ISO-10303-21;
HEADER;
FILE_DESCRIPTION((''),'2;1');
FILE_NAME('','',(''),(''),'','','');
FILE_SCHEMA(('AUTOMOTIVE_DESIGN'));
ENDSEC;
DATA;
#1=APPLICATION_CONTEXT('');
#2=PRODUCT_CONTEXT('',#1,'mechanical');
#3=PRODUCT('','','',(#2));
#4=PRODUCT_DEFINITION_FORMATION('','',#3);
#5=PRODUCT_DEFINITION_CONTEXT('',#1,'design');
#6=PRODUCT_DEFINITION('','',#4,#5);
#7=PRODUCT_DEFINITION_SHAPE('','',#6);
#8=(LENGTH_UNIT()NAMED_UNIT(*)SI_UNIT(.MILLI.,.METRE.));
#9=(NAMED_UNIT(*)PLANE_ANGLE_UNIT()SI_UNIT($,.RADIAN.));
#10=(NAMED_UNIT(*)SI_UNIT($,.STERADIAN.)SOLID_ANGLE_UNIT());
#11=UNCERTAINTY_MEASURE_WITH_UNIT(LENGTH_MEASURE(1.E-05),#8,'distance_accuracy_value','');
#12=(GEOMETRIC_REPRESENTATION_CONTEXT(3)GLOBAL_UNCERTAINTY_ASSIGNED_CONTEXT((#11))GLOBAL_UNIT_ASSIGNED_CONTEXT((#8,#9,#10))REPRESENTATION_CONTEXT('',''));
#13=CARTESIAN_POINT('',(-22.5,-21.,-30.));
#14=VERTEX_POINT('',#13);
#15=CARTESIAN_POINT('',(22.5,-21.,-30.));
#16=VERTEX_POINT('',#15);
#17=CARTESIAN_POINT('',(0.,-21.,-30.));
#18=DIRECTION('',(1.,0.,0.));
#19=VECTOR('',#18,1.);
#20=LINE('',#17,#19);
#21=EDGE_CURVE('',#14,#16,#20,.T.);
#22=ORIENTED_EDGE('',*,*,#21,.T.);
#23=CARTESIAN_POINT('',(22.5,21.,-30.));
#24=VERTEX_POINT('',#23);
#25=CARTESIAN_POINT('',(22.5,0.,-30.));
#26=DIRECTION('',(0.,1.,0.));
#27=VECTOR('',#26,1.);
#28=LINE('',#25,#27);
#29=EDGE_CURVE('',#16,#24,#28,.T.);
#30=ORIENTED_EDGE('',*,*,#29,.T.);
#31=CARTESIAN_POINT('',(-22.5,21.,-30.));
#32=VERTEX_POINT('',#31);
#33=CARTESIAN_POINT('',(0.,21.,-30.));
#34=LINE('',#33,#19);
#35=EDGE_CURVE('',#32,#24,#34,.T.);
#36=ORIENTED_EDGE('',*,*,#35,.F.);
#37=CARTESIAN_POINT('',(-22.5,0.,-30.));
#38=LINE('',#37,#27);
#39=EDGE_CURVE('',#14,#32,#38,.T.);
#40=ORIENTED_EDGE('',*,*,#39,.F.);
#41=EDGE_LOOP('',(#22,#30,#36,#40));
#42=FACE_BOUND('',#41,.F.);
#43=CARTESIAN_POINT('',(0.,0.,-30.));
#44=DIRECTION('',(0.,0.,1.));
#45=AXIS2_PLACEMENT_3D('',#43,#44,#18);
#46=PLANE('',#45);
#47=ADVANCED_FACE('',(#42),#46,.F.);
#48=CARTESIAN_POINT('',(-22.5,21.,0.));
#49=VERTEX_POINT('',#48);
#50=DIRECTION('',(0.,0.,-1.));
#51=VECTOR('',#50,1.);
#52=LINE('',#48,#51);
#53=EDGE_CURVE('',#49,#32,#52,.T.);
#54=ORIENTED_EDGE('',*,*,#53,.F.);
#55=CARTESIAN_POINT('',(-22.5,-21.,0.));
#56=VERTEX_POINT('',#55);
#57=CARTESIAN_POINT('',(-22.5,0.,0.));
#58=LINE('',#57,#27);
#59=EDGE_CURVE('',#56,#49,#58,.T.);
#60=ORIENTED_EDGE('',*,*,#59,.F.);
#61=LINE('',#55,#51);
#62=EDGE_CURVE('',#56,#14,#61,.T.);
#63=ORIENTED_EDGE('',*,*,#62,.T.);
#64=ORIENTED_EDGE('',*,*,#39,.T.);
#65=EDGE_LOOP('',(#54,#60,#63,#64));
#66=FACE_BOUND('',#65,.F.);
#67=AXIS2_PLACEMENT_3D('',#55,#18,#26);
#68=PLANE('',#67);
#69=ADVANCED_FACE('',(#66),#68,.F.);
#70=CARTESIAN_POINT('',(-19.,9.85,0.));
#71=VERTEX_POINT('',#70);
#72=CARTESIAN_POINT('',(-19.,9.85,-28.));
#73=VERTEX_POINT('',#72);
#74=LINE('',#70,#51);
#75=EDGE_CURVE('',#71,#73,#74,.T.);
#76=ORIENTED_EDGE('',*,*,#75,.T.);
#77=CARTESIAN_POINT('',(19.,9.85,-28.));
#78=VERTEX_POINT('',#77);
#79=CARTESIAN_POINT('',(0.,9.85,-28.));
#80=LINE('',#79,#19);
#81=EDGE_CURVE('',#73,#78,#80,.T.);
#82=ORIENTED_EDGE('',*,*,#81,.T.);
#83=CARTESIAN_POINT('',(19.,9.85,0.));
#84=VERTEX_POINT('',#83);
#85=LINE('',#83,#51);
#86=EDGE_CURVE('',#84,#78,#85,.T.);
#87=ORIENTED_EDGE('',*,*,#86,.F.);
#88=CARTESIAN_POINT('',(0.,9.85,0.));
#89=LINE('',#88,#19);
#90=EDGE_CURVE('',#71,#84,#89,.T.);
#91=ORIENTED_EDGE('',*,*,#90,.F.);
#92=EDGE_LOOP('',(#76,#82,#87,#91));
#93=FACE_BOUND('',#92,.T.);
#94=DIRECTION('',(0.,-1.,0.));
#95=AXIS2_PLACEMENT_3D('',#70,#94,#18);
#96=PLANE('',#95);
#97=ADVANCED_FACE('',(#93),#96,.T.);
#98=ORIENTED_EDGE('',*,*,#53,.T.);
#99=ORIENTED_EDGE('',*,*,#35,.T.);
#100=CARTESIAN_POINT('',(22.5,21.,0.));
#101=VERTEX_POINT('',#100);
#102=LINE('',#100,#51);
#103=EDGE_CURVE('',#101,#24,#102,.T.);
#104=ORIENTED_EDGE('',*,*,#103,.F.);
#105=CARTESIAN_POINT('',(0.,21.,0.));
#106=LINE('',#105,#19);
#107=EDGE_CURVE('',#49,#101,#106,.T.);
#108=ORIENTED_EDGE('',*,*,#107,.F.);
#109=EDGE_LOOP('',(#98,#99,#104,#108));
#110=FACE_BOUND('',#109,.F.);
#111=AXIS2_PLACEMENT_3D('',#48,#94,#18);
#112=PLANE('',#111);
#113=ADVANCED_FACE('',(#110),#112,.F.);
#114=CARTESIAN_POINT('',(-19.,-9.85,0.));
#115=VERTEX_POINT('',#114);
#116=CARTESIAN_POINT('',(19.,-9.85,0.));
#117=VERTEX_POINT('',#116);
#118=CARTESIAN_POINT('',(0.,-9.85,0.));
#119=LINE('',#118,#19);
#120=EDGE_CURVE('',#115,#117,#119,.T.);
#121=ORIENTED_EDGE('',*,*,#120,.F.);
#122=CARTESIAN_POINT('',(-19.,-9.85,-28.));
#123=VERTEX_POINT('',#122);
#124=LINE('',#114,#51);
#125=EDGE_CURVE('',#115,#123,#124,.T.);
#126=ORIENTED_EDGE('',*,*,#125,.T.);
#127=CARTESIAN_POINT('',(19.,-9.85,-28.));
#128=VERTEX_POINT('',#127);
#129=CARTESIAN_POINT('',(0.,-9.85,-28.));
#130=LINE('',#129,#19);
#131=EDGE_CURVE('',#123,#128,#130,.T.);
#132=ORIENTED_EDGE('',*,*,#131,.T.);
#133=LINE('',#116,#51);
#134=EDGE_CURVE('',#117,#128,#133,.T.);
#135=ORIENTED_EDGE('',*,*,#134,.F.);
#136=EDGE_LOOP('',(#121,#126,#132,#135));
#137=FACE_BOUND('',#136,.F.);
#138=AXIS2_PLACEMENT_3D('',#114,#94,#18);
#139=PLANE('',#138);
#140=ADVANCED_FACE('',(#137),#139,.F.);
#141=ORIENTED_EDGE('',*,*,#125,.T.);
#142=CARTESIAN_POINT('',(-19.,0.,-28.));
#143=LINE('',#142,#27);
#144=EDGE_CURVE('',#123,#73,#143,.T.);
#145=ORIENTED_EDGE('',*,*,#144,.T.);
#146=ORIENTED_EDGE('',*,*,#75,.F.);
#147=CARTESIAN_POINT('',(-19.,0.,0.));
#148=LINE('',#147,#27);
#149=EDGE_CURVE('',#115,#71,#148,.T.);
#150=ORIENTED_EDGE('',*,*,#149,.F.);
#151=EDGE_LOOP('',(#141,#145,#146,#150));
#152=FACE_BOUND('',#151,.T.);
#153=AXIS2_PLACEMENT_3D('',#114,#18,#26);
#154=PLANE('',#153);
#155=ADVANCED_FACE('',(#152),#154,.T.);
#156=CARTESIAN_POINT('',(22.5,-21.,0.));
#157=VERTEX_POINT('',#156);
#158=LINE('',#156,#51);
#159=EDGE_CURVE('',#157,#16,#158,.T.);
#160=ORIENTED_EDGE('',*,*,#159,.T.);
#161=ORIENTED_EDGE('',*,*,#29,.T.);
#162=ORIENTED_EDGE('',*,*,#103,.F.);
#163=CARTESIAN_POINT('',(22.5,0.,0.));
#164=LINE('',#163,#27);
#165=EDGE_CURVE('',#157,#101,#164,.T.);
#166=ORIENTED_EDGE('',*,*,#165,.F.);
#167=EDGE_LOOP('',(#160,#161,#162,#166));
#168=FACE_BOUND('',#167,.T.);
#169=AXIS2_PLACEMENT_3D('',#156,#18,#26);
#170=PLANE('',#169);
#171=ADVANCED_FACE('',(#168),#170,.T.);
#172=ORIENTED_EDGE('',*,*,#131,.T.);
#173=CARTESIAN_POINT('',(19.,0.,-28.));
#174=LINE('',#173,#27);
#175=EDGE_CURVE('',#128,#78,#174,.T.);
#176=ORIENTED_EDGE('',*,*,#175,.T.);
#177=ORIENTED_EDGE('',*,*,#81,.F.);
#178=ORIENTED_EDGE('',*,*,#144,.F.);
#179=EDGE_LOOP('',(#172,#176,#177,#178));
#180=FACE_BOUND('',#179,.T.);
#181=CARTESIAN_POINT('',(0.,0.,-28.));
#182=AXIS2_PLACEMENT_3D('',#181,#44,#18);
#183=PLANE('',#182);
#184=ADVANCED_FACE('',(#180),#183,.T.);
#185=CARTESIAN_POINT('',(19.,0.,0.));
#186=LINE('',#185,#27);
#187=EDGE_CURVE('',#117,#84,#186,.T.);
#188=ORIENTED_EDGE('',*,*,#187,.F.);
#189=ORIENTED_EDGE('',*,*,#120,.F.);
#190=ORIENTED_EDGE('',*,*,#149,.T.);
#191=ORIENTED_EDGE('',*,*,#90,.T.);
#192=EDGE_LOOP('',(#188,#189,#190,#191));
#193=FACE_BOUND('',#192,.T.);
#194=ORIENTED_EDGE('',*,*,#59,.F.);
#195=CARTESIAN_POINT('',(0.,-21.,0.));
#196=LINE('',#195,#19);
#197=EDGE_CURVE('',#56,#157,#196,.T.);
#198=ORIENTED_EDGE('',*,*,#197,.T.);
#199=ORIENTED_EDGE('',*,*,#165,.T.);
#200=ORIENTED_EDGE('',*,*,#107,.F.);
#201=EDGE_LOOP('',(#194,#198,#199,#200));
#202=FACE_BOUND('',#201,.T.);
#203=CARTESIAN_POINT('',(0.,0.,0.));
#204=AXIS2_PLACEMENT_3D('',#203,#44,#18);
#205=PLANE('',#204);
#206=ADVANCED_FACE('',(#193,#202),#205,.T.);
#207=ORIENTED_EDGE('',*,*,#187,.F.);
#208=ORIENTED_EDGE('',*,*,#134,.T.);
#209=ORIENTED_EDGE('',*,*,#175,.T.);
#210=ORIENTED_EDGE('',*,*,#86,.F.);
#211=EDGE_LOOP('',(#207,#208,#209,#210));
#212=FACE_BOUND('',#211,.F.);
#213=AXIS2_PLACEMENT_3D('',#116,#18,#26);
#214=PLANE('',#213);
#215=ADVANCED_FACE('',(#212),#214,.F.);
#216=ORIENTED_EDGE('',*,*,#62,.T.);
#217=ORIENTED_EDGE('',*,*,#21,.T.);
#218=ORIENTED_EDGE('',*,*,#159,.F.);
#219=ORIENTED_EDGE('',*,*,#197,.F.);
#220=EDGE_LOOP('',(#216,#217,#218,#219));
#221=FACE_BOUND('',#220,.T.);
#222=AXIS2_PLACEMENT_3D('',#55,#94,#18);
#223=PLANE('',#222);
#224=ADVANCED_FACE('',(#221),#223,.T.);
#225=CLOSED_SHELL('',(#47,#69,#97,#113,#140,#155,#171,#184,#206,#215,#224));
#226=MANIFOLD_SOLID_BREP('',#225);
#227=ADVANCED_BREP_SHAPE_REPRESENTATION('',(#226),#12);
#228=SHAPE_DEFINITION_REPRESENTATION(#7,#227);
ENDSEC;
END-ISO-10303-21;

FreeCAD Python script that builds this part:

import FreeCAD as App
import Part
import Sketcher

V = App.Vector


def add_polygon(sketch, points):
    """Adds a closed chain of lines whose ends are joined by coincident constraints."""
    first, n = sketch.GeometryCount, len(points)
    for a, b in zip(points, points[1:] + points[:1]):
        sketch.addGeometry(Part.LineSegment(App.Vector(*a, 0), App.Vector(*b, 0)), False)
    for i in range(n):
        sketch.addConstraint(Sketcher.Constraint("Coincident", first + i, 2, first + (i + 1) % n, 1))

doc = App.newDocument("Part")
body = doc.addObject("PartDesign::Body", "Body")

# Sketch on XY plane
sketch1 = body.newObject("Sketcher::SketchObject", "Sketch")
sketch1.AttachmentSupport = (doc.getObject("XY_Plane"), [""])
sketch1.MapMode = "FlatFace"
add_polygon(sketch1, [(-22, 21), (-22, -21), (22, -21), (22, 21)])  # lines 0-3
sketch1.addConstraint([
    Sketcher.Constraint("Vertical", 0),
    Sketcher.Constraint("Horizontal", 1),
    Sketcher.Constraint("Vertical", 2),
    Sketcher.Constraint("Horizontal", 3),
    Sketcher.Constraint("Symmetric", 0, 2, 2, 2, -1, 1),
    Sketcher.Constraint("DistanceX", 1, 1, 1, 2, 45.0),
    Sketcher.Constraint("DistanceY", 0, 2, 0, 1, 42.0),
])
pad1 = body.newObject("PartDesign::Pad", "Pad")
pad1.Profile = sketch1
pad1.Length = 30
pad1.Reversed = True

# Sketch on XY plane
sketch2 = body.newObject("Sketcher::SketchObject", "Sketch001")
sketch2.AttachmentSupport = (doc.getObject("XY_Plane"), [""])
sketch2.MapMode = "FlatFace"
add_polygon(sketch2, [(-19, 10), (-19, -10), (19, -10), (19, 10)])  # lines 0-3
sketch2.addConstraint([
    Sketcher.Constraint("Vertical", 0),
    Sketcher.Constraint("Horizontal", 1),
    Sketcher.Constraint("Vertical", 2),
    Sketcher.Constraint("Horizontal", 3),
    Sketcher.Constraint("Symmetric", 0, 2, 2, 2, -1, 1),
    Sketcher.Constraint("DistanceX", 1, 1, 1, 2, 38.0),
    Sketcher.Constraint("DistanceY", 0, 2, 0, 1, 19.7),
])
pocket1 = body.newObject("PartDesign::Pocket", "Pocket")
pocket1.Profile = sketch2
pocket1.Length = 28

doc.recompute()
